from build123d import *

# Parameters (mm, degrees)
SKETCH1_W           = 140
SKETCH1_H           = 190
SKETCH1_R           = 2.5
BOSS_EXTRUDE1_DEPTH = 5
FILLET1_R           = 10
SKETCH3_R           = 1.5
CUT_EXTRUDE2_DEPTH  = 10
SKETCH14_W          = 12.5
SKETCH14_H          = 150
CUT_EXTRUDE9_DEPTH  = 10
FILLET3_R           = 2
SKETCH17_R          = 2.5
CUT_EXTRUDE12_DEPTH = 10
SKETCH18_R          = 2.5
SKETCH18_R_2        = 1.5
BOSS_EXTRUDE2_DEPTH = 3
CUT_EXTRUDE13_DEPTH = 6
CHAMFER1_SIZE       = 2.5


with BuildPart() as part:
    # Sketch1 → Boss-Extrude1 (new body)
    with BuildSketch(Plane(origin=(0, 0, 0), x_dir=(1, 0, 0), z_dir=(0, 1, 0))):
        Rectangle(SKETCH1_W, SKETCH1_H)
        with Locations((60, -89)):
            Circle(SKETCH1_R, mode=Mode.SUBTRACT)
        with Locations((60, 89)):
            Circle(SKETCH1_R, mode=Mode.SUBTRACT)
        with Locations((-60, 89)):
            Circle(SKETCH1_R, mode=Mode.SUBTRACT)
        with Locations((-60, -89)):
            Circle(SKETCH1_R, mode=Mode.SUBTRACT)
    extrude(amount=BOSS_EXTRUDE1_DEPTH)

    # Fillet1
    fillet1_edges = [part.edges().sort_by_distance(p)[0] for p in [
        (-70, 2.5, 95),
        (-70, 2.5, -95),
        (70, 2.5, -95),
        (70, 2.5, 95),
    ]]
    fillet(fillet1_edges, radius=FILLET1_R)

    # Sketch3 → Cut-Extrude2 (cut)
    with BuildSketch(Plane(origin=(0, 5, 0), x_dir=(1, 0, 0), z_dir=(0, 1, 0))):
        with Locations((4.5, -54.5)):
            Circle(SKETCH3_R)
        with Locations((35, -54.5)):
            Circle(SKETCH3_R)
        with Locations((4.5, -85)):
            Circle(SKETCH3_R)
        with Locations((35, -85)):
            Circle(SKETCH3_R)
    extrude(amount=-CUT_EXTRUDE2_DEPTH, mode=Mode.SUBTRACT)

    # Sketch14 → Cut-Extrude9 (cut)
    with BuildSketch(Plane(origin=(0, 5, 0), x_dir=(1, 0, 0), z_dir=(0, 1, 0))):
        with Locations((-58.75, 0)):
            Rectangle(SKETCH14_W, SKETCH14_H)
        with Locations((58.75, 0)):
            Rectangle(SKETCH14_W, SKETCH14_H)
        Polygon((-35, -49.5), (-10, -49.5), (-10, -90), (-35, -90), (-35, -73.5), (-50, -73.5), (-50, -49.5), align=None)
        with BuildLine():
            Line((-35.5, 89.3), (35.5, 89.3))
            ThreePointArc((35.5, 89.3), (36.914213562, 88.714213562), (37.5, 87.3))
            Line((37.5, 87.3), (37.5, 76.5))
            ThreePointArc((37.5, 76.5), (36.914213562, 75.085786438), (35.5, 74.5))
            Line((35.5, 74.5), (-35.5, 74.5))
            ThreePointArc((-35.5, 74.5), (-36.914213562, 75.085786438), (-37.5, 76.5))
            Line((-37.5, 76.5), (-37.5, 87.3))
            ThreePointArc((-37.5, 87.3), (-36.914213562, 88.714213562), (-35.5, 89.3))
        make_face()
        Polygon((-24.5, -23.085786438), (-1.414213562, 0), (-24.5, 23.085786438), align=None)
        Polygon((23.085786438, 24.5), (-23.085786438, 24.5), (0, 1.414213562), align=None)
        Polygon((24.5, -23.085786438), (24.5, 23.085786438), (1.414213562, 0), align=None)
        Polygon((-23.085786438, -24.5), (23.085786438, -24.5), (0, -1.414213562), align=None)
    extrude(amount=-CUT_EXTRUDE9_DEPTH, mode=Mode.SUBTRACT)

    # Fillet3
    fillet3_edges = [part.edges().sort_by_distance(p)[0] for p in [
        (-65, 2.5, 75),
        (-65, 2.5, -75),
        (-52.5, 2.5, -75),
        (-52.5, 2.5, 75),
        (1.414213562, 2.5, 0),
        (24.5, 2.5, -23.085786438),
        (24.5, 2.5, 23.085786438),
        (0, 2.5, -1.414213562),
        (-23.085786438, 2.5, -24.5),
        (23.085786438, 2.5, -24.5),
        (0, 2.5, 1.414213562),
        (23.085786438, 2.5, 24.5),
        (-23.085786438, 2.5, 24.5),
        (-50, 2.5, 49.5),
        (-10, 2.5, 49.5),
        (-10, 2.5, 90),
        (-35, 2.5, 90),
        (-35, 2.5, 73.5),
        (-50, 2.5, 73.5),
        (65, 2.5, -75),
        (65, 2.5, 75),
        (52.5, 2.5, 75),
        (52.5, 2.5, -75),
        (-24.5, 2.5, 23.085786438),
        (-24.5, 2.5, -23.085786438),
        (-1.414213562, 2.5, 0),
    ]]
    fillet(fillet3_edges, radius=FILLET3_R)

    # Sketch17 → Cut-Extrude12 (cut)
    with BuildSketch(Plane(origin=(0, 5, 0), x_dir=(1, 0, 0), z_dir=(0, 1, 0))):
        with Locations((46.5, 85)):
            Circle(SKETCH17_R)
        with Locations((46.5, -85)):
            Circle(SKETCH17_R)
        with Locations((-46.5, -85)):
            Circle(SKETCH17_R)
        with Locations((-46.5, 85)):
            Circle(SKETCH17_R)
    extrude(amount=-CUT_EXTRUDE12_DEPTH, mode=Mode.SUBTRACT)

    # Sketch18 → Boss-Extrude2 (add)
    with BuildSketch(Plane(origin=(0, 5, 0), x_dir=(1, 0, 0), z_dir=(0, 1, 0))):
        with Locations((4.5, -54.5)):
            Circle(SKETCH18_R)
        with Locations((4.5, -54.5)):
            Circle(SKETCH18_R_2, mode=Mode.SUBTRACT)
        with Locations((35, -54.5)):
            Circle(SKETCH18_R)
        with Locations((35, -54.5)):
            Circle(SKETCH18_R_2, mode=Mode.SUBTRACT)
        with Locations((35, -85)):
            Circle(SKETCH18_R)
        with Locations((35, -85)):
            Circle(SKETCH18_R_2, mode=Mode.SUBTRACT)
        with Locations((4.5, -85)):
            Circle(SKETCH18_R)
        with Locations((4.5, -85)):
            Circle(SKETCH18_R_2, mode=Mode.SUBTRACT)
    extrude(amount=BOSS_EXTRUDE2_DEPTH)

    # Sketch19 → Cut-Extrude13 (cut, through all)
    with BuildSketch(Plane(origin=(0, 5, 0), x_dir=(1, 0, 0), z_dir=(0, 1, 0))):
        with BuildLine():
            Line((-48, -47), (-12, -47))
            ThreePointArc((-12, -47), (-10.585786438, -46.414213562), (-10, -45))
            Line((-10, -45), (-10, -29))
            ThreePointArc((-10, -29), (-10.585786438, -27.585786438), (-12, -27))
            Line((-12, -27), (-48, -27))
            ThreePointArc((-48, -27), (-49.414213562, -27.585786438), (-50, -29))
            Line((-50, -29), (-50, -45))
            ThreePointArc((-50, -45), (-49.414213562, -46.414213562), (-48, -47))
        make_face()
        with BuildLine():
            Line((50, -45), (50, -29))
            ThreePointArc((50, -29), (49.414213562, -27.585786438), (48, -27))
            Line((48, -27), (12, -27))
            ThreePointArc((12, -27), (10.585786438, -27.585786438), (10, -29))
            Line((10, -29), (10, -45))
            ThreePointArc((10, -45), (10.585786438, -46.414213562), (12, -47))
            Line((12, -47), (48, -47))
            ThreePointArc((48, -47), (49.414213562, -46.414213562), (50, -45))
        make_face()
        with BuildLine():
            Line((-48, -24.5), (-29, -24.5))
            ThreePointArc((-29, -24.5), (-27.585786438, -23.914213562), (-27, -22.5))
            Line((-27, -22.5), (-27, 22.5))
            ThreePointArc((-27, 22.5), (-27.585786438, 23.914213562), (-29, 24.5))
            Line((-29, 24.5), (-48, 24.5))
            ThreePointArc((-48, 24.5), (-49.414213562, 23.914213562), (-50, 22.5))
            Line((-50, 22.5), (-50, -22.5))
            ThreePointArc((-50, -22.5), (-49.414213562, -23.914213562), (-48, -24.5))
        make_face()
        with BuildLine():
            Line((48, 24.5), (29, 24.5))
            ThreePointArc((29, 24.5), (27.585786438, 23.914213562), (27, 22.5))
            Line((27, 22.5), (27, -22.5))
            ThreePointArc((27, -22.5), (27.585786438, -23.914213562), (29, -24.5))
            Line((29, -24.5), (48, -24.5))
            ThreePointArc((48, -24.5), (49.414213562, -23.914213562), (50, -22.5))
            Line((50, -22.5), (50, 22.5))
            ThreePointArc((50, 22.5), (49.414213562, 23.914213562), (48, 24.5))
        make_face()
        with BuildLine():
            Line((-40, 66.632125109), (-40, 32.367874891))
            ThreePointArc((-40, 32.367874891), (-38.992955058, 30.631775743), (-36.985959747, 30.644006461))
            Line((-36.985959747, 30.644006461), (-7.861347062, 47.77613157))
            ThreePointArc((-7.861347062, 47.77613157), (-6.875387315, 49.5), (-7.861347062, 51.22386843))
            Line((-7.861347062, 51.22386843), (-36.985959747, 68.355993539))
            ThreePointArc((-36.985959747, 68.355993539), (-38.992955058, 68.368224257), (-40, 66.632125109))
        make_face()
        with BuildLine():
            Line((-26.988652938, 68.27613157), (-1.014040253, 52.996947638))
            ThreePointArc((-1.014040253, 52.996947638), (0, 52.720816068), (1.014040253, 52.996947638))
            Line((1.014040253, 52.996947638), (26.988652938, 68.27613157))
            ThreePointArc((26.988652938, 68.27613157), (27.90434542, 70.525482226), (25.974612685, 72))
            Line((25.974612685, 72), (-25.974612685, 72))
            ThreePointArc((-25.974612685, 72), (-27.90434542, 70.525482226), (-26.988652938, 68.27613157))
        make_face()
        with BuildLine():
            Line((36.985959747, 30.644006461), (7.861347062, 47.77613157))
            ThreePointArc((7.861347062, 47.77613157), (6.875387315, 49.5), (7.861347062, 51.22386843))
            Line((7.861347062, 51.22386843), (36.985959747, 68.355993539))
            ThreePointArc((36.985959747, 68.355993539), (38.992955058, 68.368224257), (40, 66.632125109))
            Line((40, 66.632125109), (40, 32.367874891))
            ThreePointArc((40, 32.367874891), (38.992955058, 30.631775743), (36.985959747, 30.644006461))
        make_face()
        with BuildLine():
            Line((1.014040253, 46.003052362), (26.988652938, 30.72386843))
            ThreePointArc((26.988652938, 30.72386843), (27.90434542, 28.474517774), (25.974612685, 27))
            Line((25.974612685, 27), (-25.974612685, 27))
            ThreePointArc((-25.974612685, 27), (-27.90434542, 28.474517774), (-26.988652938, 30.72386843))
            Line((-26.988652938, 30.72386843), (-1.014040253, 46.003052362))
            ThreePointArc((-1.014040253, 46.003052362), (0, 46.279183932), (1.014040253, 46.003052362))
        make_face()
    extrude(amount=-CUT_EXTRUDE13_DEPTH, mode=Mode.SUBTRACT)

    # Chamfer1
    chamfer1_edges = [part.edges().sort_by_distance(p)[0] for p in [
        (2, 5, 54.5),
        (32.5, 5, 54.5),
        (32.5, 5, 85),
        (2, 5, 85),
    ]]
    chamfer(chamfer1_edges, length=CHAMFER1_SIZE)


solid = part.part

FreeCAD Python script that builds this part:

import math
import FreeCAD as App
import Part
import Sketcher


def edges_at(feature, points):
    """Names of the edges that pass closest to the given points."""
    edges = feature.Shape.Edges
    near = lambda p: min(range(len(edges)), key=lambda i: edges[i].distToShape(Part.Vertex(*p))[0])
    return sorted({f"Edge{near(p) + 1}" for p in points})


def add_polygon(sketch, points):
    """Adds a closed chain of lines whose ends are joined by coincident constraints."""
    first, n = sketch.GeometryCount, len(points)
    for a, b in zip(points, points[1:] + points[:1]):
        sketch.addGeometry(Part.LineSegment(App.Vector(*a, 0), App.Vector(*b, 0)), False)
    for i in range(n):
        sketch.addConstraint(Sketcher.Constraint("Coincident", first + i, 2, first + (i + 1) % n, 1))

doc = App.newDocument("Part")
body = doc.addObject("PartDesign::Body", "Body")

# Sketch on XZ plane
sketch1 = body.newObject("Sketcher::SketchObject", "Sketch")
sketch1.AttachmentSupport = (doc.getObject("XZ_Plane"), [""])
sketch1.MapMode = "FlatFace"
add_polygon(sketch1, [(-70, -95), (-70, 95), (70, 95), (70, -95)])  # lines 0-3
sketch1.addGeometry(Part.Circle(App.Vector(-60, 89, 0), App.Vector(0, 0, 1), 2.5), False)  # 4
sketch1.addGeometry(Part.Circle(App.Vector(60, 89, 0), App.Vector(0, 0, 1), 2.5), False)  # 5
sketch1.addGeometry(Part.Circle(App.Vector(-60, -89, 0), App.Vector(0, 0, 1), 2.5), False)  # 6
sketch1.addGeometry(Part.Circle(App.Vector(60, -89, 0), App.Vector(0, 0, 1), 2.5), False)  # 7
sketch1.addConstraint([
    Sketcher.Constraint("Vertical", 0),
    Sketcher.Constraint("Horizontal", 1),
    Sketcher.Constraint("Vertical", 2),
    Sketcher.Constraint("Horizontal", 3),
    Sketcher.Constraint("Equal", 4, 5),
    Sketcher.Constraint("Equal", 5, 6),
    Sketcher.Constraint("Equal", 6, 7),
    Sketcher.Constraint("Symmetric", 5, 3, 6, 3, -1, 1),
    Sketcher.Constraint("Symmetric", 4, 3, 7, 3, -1, 1),
    Sketcher.Constraint("Symmetric", 0, 2, 2, 2, -1, 1),
    Sketcher.Constraint("Symmetric", 4, 3, 5, 3, -2),
    Sketcher.Constraint("Diameter", 4, 5.0),
    Sketcher.Constraint("DistanceX", 1, 1, 1, 2, 140.0),
    Sketcher.Constraint("DistanceY", 0, 1, 0, 2, 190.0),
    Sketcher.Constraint("DistanceX", 4, 3, -1, 1, 60.0),
    Sketcher.Constraint("DistanceY", -1, 1, 4, 3, 89.0),
])
pad1 = body.newObject("PartDesign::Pad", "Pad")
pad1.Profile = sketch1
pad1.Length = 5
pad1.Reversed = True
doc.recompute()

fillet = body.newObject("PartDesign::Fillet", "Fillet")
fillet.Base = (pad1, edges_at(pad1, [
    (-70, 2.5, 95),
    (-70, 2.5, -95),
    (70, 2.5, -95),
    (70, 2.5, 95),
]))
fillet.Radius = 10

# Sketch on XZ plane
sketch2 = body.newObject("Sketcher::SketchObject", "Sketch001")
sketch2.AttachmentSupport = (doc.getObject("XZ_Plane"), [""])
sketch2.MapMode = "FlatFace"
sketch2.AttachmentOffset = App.Placement(App.Vector(0, 0, -5), App.Rotation())
sketch2.addGeometry([
    Part.Circle(App.Vector(4.5, 54.5, 0), App.Vector(0, 0, 1), 1.5),
    Part.Circle(App.Vector(35, 54.5, 0), App.Vector(0, 0, 1), 1.5),
    Part.Circle(App.Vector(4.5, 85, 0), App.Vector(0, 0, 1), 1.5),
    Part.Circle(App.Vector(35, 85, 0), App.Vector(0, 0, 1), 1.5),
], False)
sketch2.addConstraint([
    Sketcher.Constraint("Equal", 0, 1),
    Sketcher.Constraint("Equal", 1, 2),
    Sketcher.Constraint("Equal", 2, 3),
    Sketcher.Constraint("Horizontal", 0, 3, 1, 3),
    Sketcher.Constraint("Horizontal", 2, 3, 3, 3),
    Sketcher.Constraint("Vertical", 0, 3, 2, 3),
    Sketcher.Constraint("Vertical", 1, 3, 3, 3),
    Sketcher.Constraint("Diameter", 0, 3.0),
    Sketcher.Constraint("DistanceX", -1, 1, 1, 3, 35.0),
    Sketcher.Constraint("DistanceY", -1, 1, 2, 3, 85.0),
    Sketcher.Constraint("DistanceX", -1, 1, 0, 3, 4.5),
    Sketcher.Constraint("DistanceY", -1, 1, 0, 3, 54.5),
])
pocket1 = body.newObject("PartDesign::Pocket", "Pocket")
pocket1.Profile = sketch2
pocket1.Length = 10
pocket1.Reversed = True

# Sketch on XZ plane
sketch3 = body.newObject("Sketcher::SketchObject", "Sketch002")
sketch3.AttachmentSupport = (doc.getObject("XZ_Plane"), [""])
sketch3.MapMode = "FlatFace"
sketch3.AttachmentOffset = App.Placement(App.Vector(0, 0, -5), App.Rotation())
add_polygon(sketch3, [(-65, -75), (-65, 75), (-52.5, 75), (-52.5, -75)])  # lines 0-3
add_polygon(sketch3, [(52.5, -75), (52.5, 75), (65, 75), (65, -75)])  # lines 4-7
add_polygon(sketch3, [(-10, 49.5), (-50, 49.5), (-50, 73.5), (-35, 73.5), (-35, 90), (-10, 90)])  # lines 8-13
sketch3.addGeometry(Part.LineSegment(App.Vector(35.5, -89.3, 0), App.Vector(-35.5, -89.3, 0)), False)  # 14
sketch3.addGeometry(Part.ArcOfCircle(Part.Circle(App.Vector(-35.5, -87.3, 0), App.Vector(0, 0, 1), 2), math.radians(-180), math.radians(-90)), False)  # 15
sketch3.addGeometry(Part.LineSegment(App.Vector(-37.5, -87.3, 0), App.Vector(-37.5, -76.5, 0)), False)  # 16
sketch3.addGeometry(Part.ArcOfCircle(Part.Circle(App.Vector(-35.5, -76.5, 0), App.Vector(0, 0, 1), 2), math.radians(90), math.radians(180)), False)  # 17
sketch3.addGeometry(Part.LineSegment(App.Vector(-35.5, -74.5, 0), App.Vector(35.5, -74.5, 0)), False)  # 18
sketch3.addGeometry(Part.ArcOfCircle(Part.Circle(App.Vector(35.5, -76.5, 0), App.Vector(0, 0, 1), 2), math.radians(0), math.radians(90)), False)  # 19
sketch3.addGeometry(Part.LineSegment(App.Vector(37.5, -76.5, 0), App.Vector(37.5, -87.3, 0)), False)  # 20
sketch3.addGeometry(Part.ArcOfCircle(Part.Circle(App.Vector(35.5, -87.3, 0), App.Vector(0, 0, 1), 2), math.radians(-90), math.radians(0)), False)  # 21
add_polygon(sketch3, [(-24.5, 23.1), (-1.4, 0), (-24.5, -23.1)])  # lines 22-24
add_polygon(sketch3, [(23.1, -24.5), (-23.1, -24.5), (0, -1.4)])  # lines 25-27
add_polygon(sketch3, [(24.5, 23.1), (24.5, -23.1), (1.4, 0)])  # lines 28-30
add_polygon(sketch3, [(-23.1, 24.5), (23.1, 24.5), (0, 1.4)])  # lines 31-33
sketch3.addConstraint([
    Sketcher.Constraint("Tangent", 14, 2, 15, 2),
    Sketcher.Constraint("Tangent", 15, 1, 16, 1),
    Sketcher.Constraint("Tangent", 16, 2, 17, 2),
    Sketcher.Constraint("Tangent", 17, 1, 18, 1),
    Sketcher.Constraint("Tangent", 18, 2, 19, 2),
    Sketcher.Constraint("Tangent", 19, 1, 20, 1),
    Sketcher.Constraint("Tangent", 20, 2, 21, 2),
    Sketcher.Constraint("Tangent", 21, 1, 14, 1),
    Sketcher.Constraint("Vertical", 0),
    Sketcher.Constraint("Horizontal", 1),
    Sketcher.Constraint("Vertical", 2),
    Sketcher.Constraint("Horizontal", 3),
    Sketcher.Constraint("Vertical", 4),
    Sketcher.Constraint("Horizontal", 5),
    Sketcher.Constraint("Vertical", 6),
    Sketcher.Constraint("Horizontal", 7),
    Sketcher.Constraint("Horizontal", 8),
    Sketcher.Constraint("Vertical", 9),
    Sketcher.Constraint("Horizontal", 10),
    Sketcher.Constraint("Vertical", 11),
    Sketcher.Constraint("Horizontal", 12),
    Sketcher.Constraint("Vertical", 13),
    Sketcher.Constraint("Horizontal", 14),
    Sketcher.Constraint("Vertical", 16),
    Sketcher.Constraint("Horizontal", 18),
    Sketcher.Constraint("Vertical", 20),
    Sketcher.Constraint("Vertical", 24),
    Sketcher.Constraint("Horizontal", 25),
    Sketcher.Constraint("Vertical", 28),
    Sketcher.Constraint("Horizontal", 31),
    Sketcher.Constraint("Equal", 15, 17),
    Sketcher.Constraint("Equal", 17, 19),
    Sketcher.Constraint("Equal", 19, 21),
    Sketcher.Constraint("Symmetric", 2, 2, 4, 2, -1, 1),
    Sketcher.Constraint("Symmetric", 0, 2, 6, 2, -1, 1),
    Sketcher.Constraint("Symmetric", 24, 2, 28, 2, -1, 1),
    Sketcher.Constraint("Symmetric", 22, 2, 29, 2, -1, 1),
    Sketcher.Constraint("Symmetric", 25, 2, 31, 2, -1, 1),
    Sketcher.Constraint("Symmetric", 26, 2, 32, 2, -1, 1),
    Sketcher.Constraint("PointOnObject", 22, 2, -1),
    Sketcher.Constraint("PointOnObject", 26, 2, -2),
    Sketcher.Constraint("Perpendicular", 22, 23),
    Sketcher.Constraint("Parallel", 23, 26),
    Sketcher.Constraint("Perpendicular", 26, 27),
    Sketcher.Constraint("Perpendicular", 29, 30),
    Sketcher.Constraint("Perpendicular", 32, 33),
    Sketcher.Constraint("Horizontal", 1, 2, 4, 2),
    Sketcher.Constraint("Horizontal", 23, 2, 28, 2),
    Sketcher.Constraint("Equal", 31, 24),
    Sketcher.Constraint("Radius", 15, 2.0),
    Sketcher.Constraint("DistanceX", 8, 2, 8, 1, 40.0),
    Sketcher.Constraint("DistanceX", 10, 1, 10, 2, 15.0),
    Sketcher.Constraint("DistanceX", 14, 2, 14, 1, 71.0),
    Sketcher.Constraint("DistanceY", 0, 1, 0, 2, 150.0),
    Sketcher.Constraint("DistanceY", 9, 1, 9, 2, 24.0),
    Sketcher.Constraint("DistanceX", 1, 1, 1, 2, 12.5),
    Sketcher.Constraint("DistanceY", 11, 1, 11, 2, 16.5),
    Sketcher.Constraint("DistanceY", 16, 1, 16, 2, 10.8),
    Sketcher.Constraint("DistanceX", 0, 2, -1, 1, 65.0),
    Sketcher.Constraint("DistanceX", 8, 2, -1, 1, 50.0),
    Sketcher.Constraint("DistanceY", -1, 1, 11, 2, 90.0),
    Sketcher.Constraint("DistanceX", 1, 2, 17, 3, 17.0),
    Sketcher.Constraint("DistanceX", 17, 1, 23, 2, 11.0),
    Sketcher.Constraint("DistanceY", 17, 1, 25, 2, 50.0),
    Sketcher.Constraint("DistanceY", 31, 2, 13, 2, 25.0),
    Sketcher.Constraint("DistanceX", 25, 2, 25, 1, 46.171573),
])
pocket2 = body.newObject("PartDesign::Pocket", "Pocket001")
pocket2.Profile = sketch3
pocket2.Length = 10
pocket2.Reversed = True
doc.recompute()

fillet2 = body.newObject("PartDesign::Fillet", "Fillet001")
fillet2.Base = (pocket2, edges_at(pocket2, [
    (-65, 2.5, 75),
    (-65, 2.5, -75),
    (-52.5, 2.5, -75),
    (-52.5, 2.5, 75),
    (1.414, 2.5, 0),
    (24.5, 2.5, -23.086),
    (24.5, 2.5, 23.086),
    (0, 2.5, -1.414),
    (-23.086, 2.5, -24.5),
    (23.086, 2.5, -24.5),
    (0, 2.5, 1.414),
    (23.086, 2.5, 24.5),
    (-23.086, 2.5, 24.5),
    (-50, 2.5, 49.5),
    (-10, 2.5, 49.5),
    (-10, 2.5, 90),
    (-35, 2.5, 90),
    (-35, 2.5, 73.5),
    (-50, 2.5, 73.5),
    (65, 2.5, -75),
    (65, 2.5, 75),
    (52.5, 2.5, 75),
    (52.5, 2.5, -75),
    (-24.5, 2.5, 23.086),
    (-24.5, 2.5, -23.086),
    (-1.414, 2.5, 0),
]))
fillet2.Radius = 2

# Sketch on XZ plane
sketch4 = body.newObject("Sketcher::SketchObject", "Sketch003")
sketch4.AttachmentSupport = (doc.getObject("XZ_Plane"), [""])
sketch4.MapMode = "FlatFace"
sketch4.AttachmentOffset = App.Placement(App.Vector(0, 0, -5), App.Rotation())
sketch4.addGeometry([
    Part.Circle(App.Vector(46.5, -85, 0), App.Vector(0, 0, 1), 2.5),
    Part.Circle(App.Vector(46.5, 85, 0), App.Vector(0, 0, 1), 2.5),
    Part.Circle(App.Vector(-46.5, 85, 0), App.Vector(0, 0, 1), 2.5),
    Part.Circle(App.Vector(-46.5, -85, 0), App.Vector(0, 0, 1), 2.5),
], False)
sketch4.addConstraint([
    Sketcher.Constraint("Equal", 0, 1),
    Sketcher.Constraint("Equal", 1, 2),
    Sketcher.Constraint("Equal", 2, 3),
    Sketcher.Constraint("Symmetric", 0, 3, 2, 3, -1, 1),
    Sketcher.Constraint("Symmetric", 1, 3, 3, 3, -1, 1),
    Sketcher.Constraint("Symmetric", 1, 3, 2, 3, -2),
    Sketcher.Constraint("Diameter", 0, 5.0),
    Sketcher.Constraint("DistanceY", 0, 3, -1, 1, 85.0),
    Sketcher.Constraint("DistanceX", 2, 3, 1, 3, 93.0),
])
pocket3 = body.newObject("PartDesign::Pocket", "Pocket002")
pocket3.Profile = sketch4
pocket3.Length = 10
pocket3.Reversed = True

# Sketch on XZ plane
sketch5 = body.newObject("Sketcher::SketchObject", "Sketch004")
sketch5.AttachmentSupport = (doc.getObject("XZ_Plane"), [""])
sketch5.MapMode = "FlatFace"
sketch5.AttachmentOffset = App.Placement(App.Vector(0, 0, -5), App.Rotation())
sketch5.addGeometry([
    Part.Circle(App.Vector(4.5, 54.5, 0), App.Vector(0, 0, 1), 2.5),  # 0
    Part.Circle(App.Vector(4.5, 54.5, 0), App.Vector(0, 0, 1), 1.5),  # 1
    Part.Circle(App.Vector(35, 54.5, 0), App.Vector(0, 0, 1), 2.5),  # 2
    Part.Circle(App.Vector(35, 54.5, 0), App.Vector(0, 0, 1), 1.5),  # 3
    Part.Circle(App.Vector(35, 85, 0), App.Vector(0, 0, 1), 2.5),  # 4
    Part.Circle(App.Vector(35, 85, 0), App.Vector(0, 0, 1), 1.5),  # 5
    Part.Circle(App.Vector(4.5, 85, 0), App.Vector(0, 0, 1), 2.5),  # 6
    Part.Circle(App.Vector(4.5, 85, 0), App.Vector(0, 0, 1), 1.5),  # 7
], False)
sketch5.addConstraint([
    Sketcher.Constraint("Coincident", 1, 3, 0, 3),
    Sketcher.Constraint("Coincident", 3, 3, 2, 3),
    Sketcher.Constraint("Coincident", 5, 3, 4, 3),
    Sketcher.Constraint("Coincident", 7, 3, 6, 3),
    Sketcher.Constraint("Equal", 0, 2),
    Sketcher.Constraint("Equal", 1, 3),
    Sketcher.Constraint("Equal", 2, 4),
    Sketcher.Constraint("Equal", 3, 5),
    Sketcher.Constraint("Equal", 4, 6),
    Sketcher.Constraint("Equal", 5, 7),
    Sketcher.Constraint("Horizontal", 1, 3, 2, 3),
    Sketcher.Constraint("Horizontal", 5, 3, 6, 3),
    Sketcher.Constraint("Vertical", 3, 3, 4, 3),
    Sketcher.Constraint("Vertical", 1, 3, 6, 3),
    Sketcher.Constraint("Diameter", 0, 5.0),
    Sketcher.Constraint("Diameter", 1, 3.0),
    Sketcher.Constraint("DistanceX", -1, 1, 2, 3, 35.0),
    Sketcher.Constraint("DistanceY", -1, 1, 4, 3, 85.0),
    Sketcher.Constraint("DistanceX", -1, 1, 0, 3, 4.5),
    Sketcher.Constraint("DistanceY", -1, 1, 0, 3, 54.5),
])
pad2 = body.newObject("PartDesign::Pad", "Pad001")
pad2.Profile = sketch5
pad2.Length = 3
pad2.Reversed = True

# Sketch on XZ plane
sketch6 = body.newObject("Sketcher::SketchObject", "Sketch005")
sketch6.AttachmentSupport = (doc.getObject("XZ_Plane"), [""])
sketch6.MapMode = "FlatFace"
sketch6.AttachmentOffset = App.Placement(App.Vector(0, 0, -5), App.Rotation())
sketch6.addGeometry([
    Part.LineSegment(App.Vector(-48, 47, 0), App.Vector(-12, 47, 0)),  # 0
    Part.ArcOfCircle(Part.Circle(App.Vector(-12, 45, 0), App.Vector(0, 0, 1), 2), math.radians(0), math.radians(90)),  # 1
    Part.LineSegment(App.Vector(-10, 45, 0), App.Vector(-10, 29, 0)),  # 2
    Part.ArcOfCircle(Part.Circle(App.Vector(-12, 29, 0), App.Vector(0, 0, 1), 2), math.radians(-90), math.radians(0)),  # 3
    Part.LineSegment(App.Vector(-12, 27, 0), App.Vector(-48, 27, 0)),  # 4
    Part.ArcOfCircle(Part.Circle(App.Vector(-48, 29, 0), App.Vector(0, 0, 1), 2), math.radians(-180), math.radians(-90)),  # 5
    Part.LineSegment(App.Vector(-50, 29, 0), App.Vector(-50, 45, 0)),  # 6
    Part.ArcOfCircle(Part.Circle(App.Vector(-48, 45, 0), App.Vector(0, 0, 1), 2), math.radians(90), math.radians(180)),  # 7
    Part.LineSegment(App.Vector(50, 45, 0), App.Vector(50, 29, 0)),  # 8
    Part.ArcOfCircle(Part.Circle(App.Vector(48, 29, 0), App.Vector(0, 0, 1), 2), math.radians(-90), math.radians(0)),  # 9
    Part.LineSegment(App.Vector(48, 27, 0), App.Vector(12, 27, 0)),  # 10
    Part.ArcOfCircle(Part.Circle(App.Vector(12, 29, 0), App.Vector(0, 0, 1), 2), math.radians(-180), math.radians(-90)),  # 11
    Part.LineSegment(App.Vector(10, 29, 0), App.Vector(10, 45, 0)),  # 12
    Part.ArcOfCircle(Part.Circle(App.Vector(12, 45, 0), App.Vector(0, 0, 1), 2), math.radians(90), math.radians(180)),  # 13
    Part.LineSegment(App.Vector(12, 47, 0), App.Vector(48, 47, 0)),  # 14
    Part.ArcOfCircle(Part.Circle(App.Vector(48, 45, 0), App.Vector(0, 0, 1), 2), math.radians(0), math.radians(90)),  # 15
    Part.LineSegment(App.Vector(-48, 24.5, 0), App.Vector(-29, 24.5, 0)),  # 16
    Part.ArcOfCircle(Part.Circle(App.Vector(-29, 22.5, 0), App.Vector(0, 0, 1), 2), math.radians(0), math.radians(90)),  # 17
    Part.LineSegment(App.Vector(-27, 22.5, 0), App.Vector(-27, -22.5, 0)),  # 18
    Part.ArcOfCircle(Part.Circle(App.Vector(-29, -22.5, 0), App.Vector(0, 0, 1), 2), math.radians(-90), math.radians(0)),  # 19
    Part.LineSegment(App.Vector(-29, -24.5, 0), App.Vector(-48, -24.5, 0)),  # 20
    Part.ArcOfCircle(Part.Circle(App.Vector(-48, -22.5, 0), App.Vector(0, 0, 1), 2), math.radians(-180), math.radians(-90)),  # 21
    Part.LineSegment(App.Vector(-50, -22.5, 0), App.Vector(-50, 22.5, 0)),  # 22
    Part.ArcOfCircle(Part.Circle(App.Vector(-48, 22.5, 0), App.Vector(0, 0, 1), 2), math.radians(90), math.radians(180)),  # 23
    Part.LineSegment(App.Vector(48, -24.5, 0), App.Vector(29, -24.5, 0)),  # 24
    Part.ArcOfCircle(Part.Circle(App.Vector(29, -22.5, 0), App.Vector(0, 0, 1), 2), math.radians(-180), math.radians(-90)),  # 25
    Part.LineSegment(App.Vector(27, -22.5, 0), App.Vector(27, 22.5, 0)),  # 26
    Part.ArcOfCircle(Part.Circle(App.Vector(29, 22.5, 0), App.Vector(0, 0, 1), 2), math.radians(90), math.radians(180)),  # 27
    Part.LineSegment(App.Vector(29, 24.5, 0), App.Vector(48, 24.5, 0)),  # 28
    Part.ArcOfCircle(Part.Circle(App.Vector(48, 22.5, 0), App.Vector(0, 0, 1), 2), math.radians(0), math.radians(90)),  # 29
    Part.LineSegment(App.Vector(50, 22.5, 0), App.Vector(50, -22.5, 0)),  # 30
    Part.ArcOfCircle(Part.Circle(App.Vector(48, -22.5, 0), App.Vector(0, 0, 1), 2), math.radians(-90), math.radians(0)),  # 31
    Part.LineSegment(App.Vector(-40, -66.6, 0), App.Vector(-40, -32.4, 0)),  # 32
    Part.ArcOfCircle(Part.Circle(App.Vector(-38, -32.4, 0), App.Vector(0, 0, 1), 2), math.radians(60), math.radians(180)),  # 33
    Part.LineSegment(App.Vector(-37, -30.6, 0), App.Vector(-7.9, -47.8, 0)),  # 34
    Part.ArcOfCircle(Part.Circle(App.Vector(-8.9, -49.5, 0), App.Vector(0, 0, 1), 2), math.radians(-60), math.radians(60)),  # 35
    Part.LineSegment(App.Vector(-7.9, -51.2, 0), App.Vector(-37, -68.4, 0)),  # 36
    Part.ArcOfCircle(Part.Circle(App.Vector(-38, -66.6, 0), App.Vector(0, 0, 1), 2), math.radians(180), math.radians(300)),  # 37
    Part.LineSegment(App.Vector(-27, -68.3, 0), App.Vector(-1, -53, 0)),  # 38
    Part.ArcOfCircle(Part.Circle(App.Vector(0, -54.7, 0), App.Vector(0, 0, 1), 2), math.radians(60), math.radians(120)),  # 39
    Part.LineSegment(App.Vector(1, -53, 0), App.Vector(27, -68.3, 0)),  # 40
    Part.ArcOfCircle(Part.Circle(App.Vector(26, -70, 0), App.Vector(0, 0, 1), 2), math.radians(-90), math.radians(60)),  # 41
    Part.LineSegment(App.Vector(26, -72, 0), App.Vector(-26, -72, 0)),  # 42
    Part.ArcOfCircle(Part.Circle(App.Vector(-26, -70, 0), App.Vector(0, 0, 1), 2), math.radians(120), math.radians(270)),  # 43
    Part.LineSegment(App.Vector(7.9, -47.8, 0), App.Vector(37, -30.6, 0)),  # 44
    Part.ArcOfCircle(Part.Circle(App.Vector(38, -32.4, 0), App.Vector(0, 0, 1), 2), math.radians(0), math.radians(120)),  # 45
    Part.LineSegment(App.Vector(40, -32.4, 0), App.Vector(40, -66.6, 0)),  # 46
    Part.ArcOfCircle(Part.Circle(App.Vector(38, -66.6, 0), App.Vector(0, 0, 1), 2), math.radians(-120), math.radians(0)),  # 47
    Part.LineSegment(App.Vector(37, -68.4, 0), App.Vector(7.9, -51.2, 0)),  # 48
    Part.ArcOfCircle(Part.Circle(App.Vector(8.9, -49.5, 0), App.Vector(0, 0, 1), 2), math.radians(120), math.radians(240)),  # 49
    Part.LineSegment(App.Vector(27, -30.7, 0), App.Vector(1, -46, 0)),  # 50
    Part.ArcOfCircle(Part.Circle(App.Vector(0, -44.3, 0), App.Vector(0, 0, 1), 2), math.radians(-120), math.radians(-60)),  # 51
    Part.LineSegment(App.Vector(-1, -46, 0), App.Vector(-27, -30.7, 0)),  # 52
    Part.ArcOfCircle(Part.Circle(App.Vector(-26, -29, 0), App.Vector(0, 0, 1), 2), math.radians(90), math.radians(240)),  # 53
    Part.LineSegment(App.Vector(-26, -27, 0), App.Vector(26, -27, 0)),  # 54
    Part.ArcOfCircle(Part.Circle(App.Vector(26, -29, 0), App.Vector(0, 0, 1), 2), math.radians(-60), math.radians(90)),  # 55
], False)
sketch6.addConstraint([
    Sketcher.Constraint("Tangent", 0, 2, 1, 2),
    Sketcher.Constraint("Tangent", 1, 1, 2, 1),
    Sketcher.Constraint("Tangent", 2, 2, 3, 2),
    Sketcher.Constraint("Tangent", 3, 1, 4, 1),
    Sketcher.Constraint("Tangent", 4, 2, 5, 2),
    Sketcher.Constraint("Tangent", 5, 1, 6, 1),
    Sketcher.Constraint("Tangent", 6, 2, 7, 2),
    Sketcher.Constraint("Tangent", 7, 1, 0, 1),
    Sketcher.Constraint("Tangent", 8, 2, 9, 2),
    Sketcher.Constraint("Tangent", 9, 1, 10, 1),
    Sketcher.Constraint("Tangent", 10, 2, 11, 2),
    Sketcher.Constraint("Tangent", 11, 1, 12, 1),
    Sketcher.Constraint("Tangent", 12, 2, 13, 2),
    Sketcher.Constraint("Tangent", 13, 1, 14, 1),
    Sketcher.Constraint("Tangent", 14, 2, 15, 2),
    Sketcher.Constraint("Tangent", 15, 1, 8, 1),
    Sketcher.Constraint("Tangent", 16, 2, 17, 2),
    Sketcher.Constraint("Tangent", 17, 1, 18, 1),
    Sketcher.Constraint("Tangent", 18, 2, 19, 2),
    Sketcher.Constraint("Tangent", 19, 1, 20, 1),
    Sketcher.Constraint("Tangent", 20, 2, 21, 2),
    Sketcher.Constraint("Tangent", 21, 1, 22, 1),
    Sketcher.Constraint("Tangent", 22, 2, 23, 2),
    Sketcher.Constraint("Tangent", 23, 1, 16, 1),
    Sketcher.Constraint("Tangent", 24, 2, 25, 2),
    Sketcher.Constraint("Tangent", 25, 1, 26, 1),
    Sketcher.Constraint("Tangent", 26, 2, 27, 2),
    Sketcher.Constraint("Tangent", 27, 1, 28, 1),
    Sketcher.Constraint("Tangent", 28, 2, 29, 2),
    Sketcher.Constraint("Tangent", 29, 1, 30, 1),
    Sketcher.Constraint("Tangent", 30, 2, 31, 2),
    Sketcher.Constraint("Tangent", 31, 1, 24, 1),
    Sketcher.Constraint("Tangent", 32, 2, 33, 2),
    Sketcher.Constraint("Tangent", 33, 1, 34, 1),
    Sketcher.Constraint("Tangent", 34, 2, 35, 2),
    Sketcher.Constraint("Tangent", 35, 1, 36, 1),
    Sketcher.Constraint("Tangent", 36, 2, 37, 2),
    Sketcher.Constraint("Tangent", 37, 1, 32, 1),
    Sketcher.Constraint("Tangent", 38, 2, 39, 2),
    Sketcher.Constraint("Tangent", 39, 1, 40, 1),
    Sketcher.Constraint("Tangent", 40, 2, 41, 2),
    Sketcher.Constraint("Tangent", 41, 1, 42, 1),
    Sketcher.Constraint("Tangent", 42, 2, 43, 2),
    Sketcher.Constraint("Tangent", 43, 1, 38, 1),
    Sketcher.Constraint("Tangent", 44, 2, 45, 2),
    Sketcher.Constraint("Tangent", 45, 1, 46, 1),
    Sketcher.Constraint("Tangent", 46, 2, 47, 2),
    Sketcher.Constraint("Tangent", 47, 1, 48, 1),
    Sketcher.Constraint("Tangent", 48, 2, 49, 2),
    Sketcher.Constraint("Tangent", 49, 1, 44, 1),
    Sketcher.Constraint("Tangent", 50, 2, 51, 2),
    Sketcher.Constraint("Tangent", 51, 1, 52, 1),
    Sketcher.Constraint("Tangent", 52, 2, 53, 2),
    Sketcher.Constraint("Tangent", 53, 1, 54, 1),
    Sketcher.Constraint("Tangent", 54, 2, 55, 2),
    Sketcher.Constraint("Tangent", 55, 1, 50, 1),
    Sketcher.Constraint("Horizontal", 0),
    Sketcher.Constraint("Vertical", 2),
    Sketcher.Constraint("Horizontal", 4),
    Sketcher.Constraint("Vertical", 6),
    Sketcher.Constraint("Vertical", 8),
    Sketcher.Constraint("Horizontal", 10),
    Sketcher.Constraint("Vertical", 12),
    Sketcher.Constraint("Horizontal", 14),
    Sketcher.Constraint("Horizontal", 16),
    Sketcher.Constraint("Vertical", 18),
    Sketcher.Constraint("Horizontal", 20),
    Sketcher.Constraint("Vertical", 22),
    Sketcher.Constraint("Horizontal", 24),
    Sketcher.Constraint("Vertical", 26),
    Sketcher.Constraint("Horizontal", 28),
    Sketcher.Constraint("Vertical", 30),
    Sketcher.Constraint("Vertical", 32),
    Sketcher.Constraint("Horizontal", 42),
    Sketcher.Constraint("Vertical", 46),
    Sketcher.Constraint("Horizontal", 54),
    Sketcher.Constraint("Equal", 1, 3),
    Sketcher.Constraint("Equal", 3, 5),
    Sketcher.Constraint("Equal", 5, 7),
    Sketcher.Constraint("Equal", 7, 9),
    Sketcher.Constraint("Equal", 9, 11),
    Sketcher.Constraint("Equal", 11, 13),
    Sketcher.Constraint("Equal", 13, 15),
    Sketcher.Constraint("Equal", 15, 17),
    Sketcher.Constraint("Equal", 17, 19),
    Sketcher.Constraint("Equal", 19, 21),
    Sketcher.Constraint("Equal", 21, 23),
    Sketcher.Constraint("Equal", 23, 25),
    Sketcher.Constraint("Equal", 25, 27),
    Sketcher.Constraint("Equal", 27, 29),
    Sketcher.Constraint("Equal", 29, 31),
    Sketcher.Constraint("Equal", 31, 33),
    Sketcher.Constraint("Equal", 33, 35),
    Sketcher.Constraint("Equal", 35, 37),
    Sketcher.Constraint("Equal", 37, 39),
    Sketcher.Constraint("Equal", 39, 41),
    Sketcher.Constraint("Equal", 41, 43),
    Sketcher.Constraint("Equal", 43, 45),
    Sketcher.Constraint("Equal", 45, 47),
    Sketcher.Constraint("Equal", 47, 49),
    Sketcher.Constraint("Equal", 49, 51),
    Sketcher.Constraint("Equal", 51, 53),
    Sketcher.Constraint("Equal", 53, 55),
    Sketcher.Constraint("Symmetric", 17, 3, 25, 3, -1, 1),
    Sketcher.Constraint("Symmetric", 21, 3, 29, 3, -1, 1),
    Sketcher.Constraint("Symmetric", 5, 3, 9, 3, -2),
    Sketcher.Constraint("Symmetric", 1, 3, 13, 3, -2),
    Sketcher.Constraint("Symmetric", 33, 3, 45, 3, -2),
    Sketcher.Constraint("Symmetric", 35, 3, 49, 3, -2),
    Sketcher.Constraint("Symmetric", 38, 2, 39, 1, -2),
    Sketcher.Constraint("Symmetric", 50, 2, 51, 1, -2),
    Sketcher.Constraint("Parallel", 36, 38),
    Sketcher.Constraint("Parallel", 34, 40),
    Sketcher.Constraint("Parallel", 40, 48),
    Sketcher.Constraint("Parallel", 44, 50),
    Sketcher.Constraint("Horizontal", 21, 3, 25, 3),
    Sketcher.Constraint("Vertical", 7, 3, 21, 3),
    Sketcher.Constraint("Vertical", 43, 3, 53, 3),
    Sketcher.Constraint("Radius", 1, 2.0),
    Sketcher.Constraint("DistanceX", 0, 1, 0, 2, 36.0),
    Sketcher.Constraint("DistanceX", 16, 1, 16, 2, 19.0),
    Sketcher.Constraint("DistanceY", 2, 2, 2, 1, 16.0),
    Sketcher.Constraint("DistanceY", 18, 2, 18, 1, 45.0),
    Sketcher.Constraint("DistanceX", 1, 3, -1, 1, 12.0),
    Sketcher.Constraint("DistanceY", -1, 1, 1, 3, 45.0),
    Sketcher.Constraint("DistanceX", 33, 3, -1, 1, 38.0),
    Sketcher.Constraint("DistanceY", 41, 3, -1, 1, 70.0),
    Sketcher.Constraint("DistanceY", 53, 3, -1, 1, 29.0),
    Sketcher.Constraint("DistanceY", 35, 3, -1, 1, 49.5),
    Sketcher.Constraint("DistanceY", 32, 1, 32, 2, 34.26425),
    Sketcher.Constraint("Distance", 38, 30.135261),
    Sketcher.Constraint("DistanceX", 42, 2, 42, 1, 51.949225),
])
pocket4 = body.newObject("PartDesign::Pocket", "Pocket003")
pocket4.Profile = sketch6
pocket4.Type = "ThroughAll"
pocket4.Reversed = True
doc.recompute()

chamfer = body.newObject("PartDesign::Chamfer", "Chamfer")
chamfer.Base = (pocket4, edges_at(pocket4, [
    (2, 5, 54.5),
    (32.5, 5, 54.5),
    (32.5, 5, 85),
    (2, 5, 85),
]))
chamfer.Size = 2.5

doc.recompute()
